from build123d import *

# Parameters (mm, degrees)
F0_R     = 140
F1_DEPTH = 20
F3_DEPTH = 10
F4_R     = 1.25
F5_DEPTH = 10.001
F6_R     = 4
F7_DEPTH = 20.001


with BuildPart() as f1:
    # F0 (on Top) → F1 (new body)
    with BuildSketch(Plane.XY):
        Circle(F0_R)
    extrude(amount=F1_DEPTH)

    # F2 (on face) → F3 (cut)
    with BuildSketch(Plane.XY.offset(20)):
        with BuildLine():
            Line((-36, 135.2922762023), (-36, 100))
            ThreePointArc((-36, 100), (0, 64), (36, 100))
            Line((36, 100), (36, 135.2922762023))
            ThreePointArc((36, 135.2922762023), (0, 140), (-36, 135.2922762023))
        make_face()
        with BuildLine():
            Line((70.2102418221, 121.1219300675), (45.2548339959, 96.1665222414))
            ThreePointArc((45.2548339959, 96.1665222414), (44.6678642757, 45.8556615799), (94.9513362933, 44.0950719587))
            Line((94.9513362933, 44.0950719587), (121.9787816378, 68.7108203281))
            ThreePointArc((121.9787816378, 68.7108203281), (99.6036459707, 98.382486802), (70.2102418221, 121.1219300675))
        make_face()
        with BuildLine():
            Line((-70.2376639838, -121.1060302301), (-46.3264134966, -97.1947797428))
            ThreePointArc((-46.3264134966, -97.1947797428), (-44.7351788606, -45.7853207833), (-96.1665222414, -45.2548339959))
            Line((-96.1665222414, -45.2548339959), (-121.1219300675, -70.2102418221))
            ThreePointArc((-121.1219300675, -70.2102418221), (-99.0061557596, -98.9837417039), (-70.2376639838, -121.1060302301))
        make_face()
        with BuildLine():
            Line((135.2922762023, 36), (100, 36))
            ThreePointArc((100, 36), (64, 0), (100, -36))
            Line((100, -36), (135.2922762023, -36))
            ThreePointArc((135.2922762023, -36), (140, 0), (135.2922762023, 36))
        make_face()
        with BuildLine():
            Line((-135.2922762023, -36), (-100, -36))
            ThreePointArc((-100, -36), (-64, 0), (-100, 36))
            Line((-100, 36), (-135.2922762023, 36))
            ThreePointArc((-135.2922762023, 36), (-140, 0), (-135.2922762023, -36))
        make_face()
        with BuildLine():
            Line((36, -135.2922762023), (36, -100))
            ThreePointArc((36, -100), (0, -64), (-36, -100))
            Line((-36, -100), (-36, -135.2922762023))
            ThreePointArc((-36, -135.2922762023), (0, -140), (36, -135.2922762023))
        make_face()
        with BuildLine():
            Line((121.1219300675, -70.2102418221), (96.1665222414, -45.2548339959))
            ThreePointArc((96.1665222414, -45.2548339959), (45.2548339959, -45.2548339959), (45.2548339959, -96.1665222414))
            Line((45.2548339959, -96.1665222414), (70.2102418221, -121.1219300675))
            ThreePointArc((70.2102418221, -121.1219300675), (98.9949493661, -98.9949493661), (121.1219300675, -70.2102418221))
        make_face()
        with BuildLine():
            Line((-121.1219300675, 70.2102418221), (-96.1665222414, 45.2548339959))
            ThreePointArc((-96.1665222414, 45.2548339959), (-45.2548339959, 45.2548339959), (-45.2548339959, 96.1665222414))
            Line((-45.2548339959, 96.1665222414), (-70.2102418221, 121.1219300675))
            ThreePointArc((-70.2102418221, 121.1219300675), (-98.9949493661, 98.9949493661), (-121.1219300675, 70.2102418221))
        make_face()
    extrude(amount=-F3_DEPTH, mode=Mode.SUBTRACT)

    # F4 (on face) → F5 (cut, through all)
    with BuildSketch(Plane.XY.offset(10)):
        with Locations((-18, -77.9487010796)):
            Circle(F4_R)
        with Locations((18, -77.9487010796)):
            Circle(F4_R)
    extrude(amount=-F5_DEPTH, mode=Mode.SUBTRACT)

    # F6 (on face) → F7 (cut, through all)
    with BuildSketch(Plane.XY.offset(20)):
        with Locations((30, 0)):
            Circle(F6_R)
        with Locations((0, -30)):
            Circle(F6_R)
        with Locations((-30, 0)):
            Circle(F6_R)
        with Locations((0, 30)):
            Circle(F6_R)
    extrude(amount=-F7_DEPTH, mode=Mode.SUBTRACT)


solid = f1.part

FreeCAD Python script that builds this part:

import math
import FreeCAD as App
import Part
import Sketcher

V = App.Vector

doc = App.newDocument("Part")
params = doc.addObject("Spreadsheet::Sheet", "Params")
for row, (alias, value) in enumerate([
    ("sketch1_diameter", "280 mm"),
    ("pad1_length", "20 mm"),
    ("sketch2_radius", "36 mm"),
    ("sketch2_radius2", "140 mm"),
    ("pocket1_length", "10 mm"),
    ("sketch3_diameter", "2.5 mm"),
    ("sketch4_diameter", "8 mm"),
], start=1):
    params.set(f"A{row}", alias)
    params.set(f"B{row}", "=" + value)
    params.setAlias(f"B{row}", alias)

body = doc.addObject("PartDesign::Body", "Body")

# Sketch on XY plane
sketch1 = body.newObject("Sketcher::SketchObject", "Sketch")
sketch1.AttachmentSupport = (doc.getObject("XY_Plane"), [""])
sketch1.MapMode = "FlatFace"
sketch1.addGeometry(Part.Circle(V(0, 0, 0), V(0, 0, 1), 140), False)
sketch1.addConstraint(Sketcher.Constraint("Coincident", 0, 3, -1, 1))
sketch1.addConstraint(Sketcher.Constraint("Diameter", 0, 280.0))
sketch1.setExpression("Constraints[1]", "Params.sketch1_diameter")
pad1 = body.newObject("PartDesign::Pad", "Pad")
pad1.Profile = sketch1
pad1.setExpression("Length", "Params.pad1_length")

# Sketch on XY plane
sketch2 = body.newObject("Sketcher::SketchObject", "Sketch001")
sketch2.AttachmentSupport = (doc.getObject("XY_Plane"), [""])
sketch2.MapMode = "FlatFace"
sketch2.AttachmentOffset = App.Placement(V(0, 0, 20), App.Rotation())
sketch2.addGeometry(Part.LineSegment(V(-36, 135, 0), V(-36, 100, 0)), False)
sketch2.addGeometry(Part.ArcOfCircle(Part.Circle(V(0, 100, 0), V(0, 0, 1), 36), math.radians(180), math.radians(360)), False)
sketch2.addGeometry(Part.LineSegment(V(36, 100, 0), V(36, 135, 0)), False)
sketch2.addGeometry(Part.ArcOfCircle(Part.Circle(V(0, 0, 0), V(0, 0, 1), 140), math.radians(75), math.radians(105)), False)
sketch2.addGeometry(Part.LineSegment(V(70, 121, 0), V(45, 96, 0)), False)
sketch2.addGeometry(Part.ArcOfCircle(Part.Circle(V(71, 71, 0), V(0, 0, 1), 36), math.radians(135), math.radians(312)), False)
sketch2.addGeometry(Part.LineSegment(V(95, 44, 0), V(122, 69, 0)), False)
sketch2.addGeometry(Part.ArcOfCircle(Part.Circle(V(0, 0, 0), V(0, 0, 1), 140), math.radians(29), math.radians(60)), False)
sketch2.addGeometry(Part.LineSegment(V(-70, -121, 0), V(-46, -97, 0)), False)
sketch2.addGeometry(Part.ArcOfCircle(Part.Circle(V(-71, -71, 0), V(0, 0, 1), 36), math.radians(-47), math.radians(135)), False)
sketch2.addGeometry(Part.LineSegment(V(-96, -45, 0), V(-121, -70, 0)), False)
sketch2.addGeometry(Part.ArcOfCircle(Part.Circle(V(0, 0, 0), V(0, 0, 1), 140), math.radians(-150), math.radians(-120)), False)
sketch2.addGeometry(Part.LineSegment(V(135, 36, 0), V(100, 36, 0)), False)
sketch2.addGeometry(Part.ArcOfCircle(Part.Circle(V(100, 0, 0), V(0, 0, 1), 36), math.radians(90), math.radians(270)), False)
sketch2.addGeometry(Part.LineSegment(V(100, -36, 0), V(135, -36, 0)), False)
sketch2.addGeometry(Part.ArcOfCircle(Part.Circle(V(0, 0, 0), V(0, 0, 1), 140), math.radians(-15), math.radians(15)), False)
sketch2.addGeometry(Part.LineSegment(V(-135, -36, 0), V(-100, -36, 0)), False)
sketch2.addGeometry(Part.ArcOfCircle(Part.Circle(V(-100, 0, 0), V(0, 0, 1), 36), math.radians(-90), math.radians(90)), False)
sketch2.addGeometry(Part.LineSegment(V(-100, 36, 0), V(-135, 36, 0)), False)
sketch2.addGeometry(Part.ArcOfCircle(Part.Circle(V(0, 0, 0), V(0, 0, 1), 140), math.radians(165), math.radians(195)), False)
sketch2.addGeometry(Part.LineSegment(V(36, -135, 0), V(36, -100, 0)), False)
sketch2.addGeometry(Part.ArcOfCircle(Part.Circle(V(0, -100, 0), V(0, 0, 1), 36), math.radians(0), math.radians(180)), False)
sketch2.addGeometry(Part.LineSegment(V(-36, -100, 0), V(-36, -135, 0)), False)
sketch2.addGeometry(Part.ArcOfCircle(Part.Circle(V(0, 0, 0), V(0, 0, 1), 140), math.radians(-105), math.radians(-75)), False)
sketch2.addGeometry(Part.LineSegment(V(121, -70, 0), V(96, -45, 0)), False)
sketch2.addGeometry(Part.ArcOfCircle(Part.Circle(V(71, -71, 0), V(0, 0, 1), 36), math.radians(45), math.radians(225)), False)
sketch2.addGeometry(Part.LineSegment(V(45, -96, 0), V(70, -121, 0)), False)
sketch2.addGeometry(Part.ArcOfCircle(Part.Circle(V(0, 0, 0), V(0, 0, 1), 140), math.radians(-60), math.radians(-30)), False)
sketch2.addGeometry(Part.LineSegment(V(-121, 70, 0), V(-96, 45, 0)), False)
sketch2.addGeometry(Part.ArcOfCircle(Part.Circle(V(-71, 71, 0), V(0, 0, 1), 36), math.radians(-135), math.radians(45)), False)
sketch2.addGeometry(Part.LineSegment(V(-45, 96, 0), V(-70, 121, 0)), False)
sketch2.addGeometry(Part.ArcOfCircle(Part.Circle(V(0, 0, 0), V(0, 0, 1), 140), math.radians(120), math.radians(150)), False)
sketch2.addConstraint(Sketcher.Constraint("Tangent", 0, 2, 1, 1))
sketch2.addConstraint(Sketcher.Constraint("Tangent", 1, 2, 2, 1))
sketch2.addConstraint(Sketcher.Constraint("Coincident", 2, 2, 3, 1))
sketch2.addConstraint(Sketcher.Constraint("Coincident", 3, 2, 0, 1))
sketch2.addConstraint(Sketcher.Constraint("Tangent", 4, 2, 5, 1))
sketch2.addConstraint(Sketcher.Constraint("Tangent", 5, 2, 6, 1))
sketch2.addConstraint(Sketcher.Constraint("Coincident", 6, 2, 7, 1))
sketch2.addConstraint(Sketcher.Constraint("Coincident", 7, 2, 4, 1))
sketch2.addConstraint(Sketcher.Constraint("Coincident", 8, 2, 9, 1))
sketch2.addConstraint(Sketcher.Constraint("Tangent", 9, 2, 10, 1))
sketch2.addConstraint(Sketcher.Constraint("Coincident", 10, 2, 11, 1))
sketch2.addConstraint(Sketcher.Constraint("Coincident", 11, 2, 8, 1))
sketch2.addConstraint(Sketcher.Constraint("Tangent", 12, 2, 13, 1))
sketch2.addConstraint(Sketcher.Constraint("Tangent", 13, 2, 14, 1))
sketch2.addConstraint(Sketcher.Constraint("Coincident", 14, 2, 15, 1))
sketch2.addConstraint(Sketcher.Constraint("Coincident", 15, 2, 12, 1))
sketch2.addConstraint(Sketcher.Constraint("Tangent", 16, 2, 17, 1))
sketch2.addConstraint(Sketcher.Constraint("Tangent", 17, 2, 18, 1))
sketch2.addConstraint(Sketcher.Constraint("Coincident", 18, 2, 19, 1))
sketch2.addConstraint(Sketcher.Constraint("Coincident", 19, 2, 16, 1))
sketch2.addConstraint(Sketcher.Constraint("Tangent", 20, 2, 21, 1))
sketch2.addConstraint(Sketcher.Constraint("Tangent", 21, 2, 22, 1))
sketch2.addConstraint(Sketcher.Constraint("Coincident", 22, 2, 23, 1))
sketch2.addConstraint(Sketcher.Constraint("Coincident", 23, 2, 20, 1))
sketch2.addConstraint(Sketcher.Constraint("Tangent", 24, 2, 25, 1))
sketch2.addConstraint(Sketcher.Constraint("Tangent", 25, 2, 26, 1))
sketch2.addConstraint(Sketcher.Constraint("Coincident", 26, 2, 27, 1))
sketch2.addConstraint(Sketcher.Constraint("Coincident", 27, 2, 24, 1))
sketch2.addConstraint(Sketcher.Constraint("Tangent", 28, 2, 29, 1))
sketch2.addConstraint(Sketcher.Constraint("Tangent", 29, 2, 30, 1))
sketch2.addConstraint(Sketcher.Constraint("Coincident", 30, 2, 31, 1))
sketch2.addConstraint(Sketcher.Constraint("Coincident", 31, 2, 28, 1))
sketch2.addConstraint(Sketcher.Constraint("Vertical", 0))
sketch2.addConstraint(Sketcher.Constraint("Vertical", 2))
sketch2.addConstraint(Sketcher.Constraint("Horizontal", 12))
sketch2.addConstraint(Sketcher.Constraint("Horizontal", 14))
sketch2.addConstraint(Sketcher.Constraint("Horizontal", 16))
sketch2.addConstraint(Sketcher.Constraint("Horizontal", 18))
sketch2.addConstraint(Sketcher.Constraint("Vertical", 20))
sketch2.addConstraint(Sketcher.Constraint("Vertical", 22))
sketch2.addConstraint(Sketcher.Constraint("Coincident", 3, 3, -1, 1))
sketch2.addConstraint(Sketcher.Constraint("Coincident", 7, 3, -1, 1))
sketch2.addConstraint(Sketcher.Constraint("Coincident", 11, 3, -1, 1))
sketch2.addConstraint(Sketcher.Constraint("Coincident", 15, 3, -1, 1))
sketch2.addConstraint(Sketcher.Constraint("Coincident", 19, 3, -1, 1))
sketch2.addConstraint(Sketcher.Constraint("Coincident", 23, 3, -1, 1))
sketch2.addConstraint(Sketcher.Constraint("Coincident", 27, 3, -1, 1))
sketch2.addConstraint(Sketcher.Constraint("Coincident", 31, 3, -1, 1))
sketch2.addConstraint(Sketcher.Constraint("Equal", 1, 5))
sketch2.addConstraint(Sketcher.Constraint("Equal", 3, 7))
sketch2.addConstraint(Sketcher.Constraint("Equal", 5, 9))
sketch2.addConstraint(Sketcher.Constraint("Equal", 7, 11))
sketch2.addConstraint(Sketcher.Constraint("Equal", 9, 13))
sketch2.addConstraint(Sketcher.Constraint("Equal", 11, 15))
sketch2.addConstraint(Sketcher.Constraint("Equal", 13, 17))
sketch2.addConstraint(Sketcher.Constraint("Equal", 15, 19))
sketch2.addConstraint(Sketcher.Constraint("Equal", 17, 21))
sketch2.addConstraint(Sketcher.Constraint("Equal", 19, 23))
sketch2.addConstraint(Sketcher.Constraint("Equal", 21, 25))
sketch2.addConstraint(Sketcher.Constraint("Equal", 23, 27))
sketch2.addConstraint(Sketcher.Constraint("Equal", 25, 29))
sketch2.addConstraint(Sketcher.Constraint("Equal", 27, 31))
sketch2.addConstraint(Sketcher.Constraint("Symmetric", 5, 3, 9, 3, -1, 1))
sketch2.addConstraint(Sketcher.Constraint("Symmetric", 13, 3, 17, 3, -1, 1))
sketch2.addConstraint(Sketcher.Constraint("Symmetric", 1, 3, 21, 3, -1, 1))
sketch2.addConstraint(Sketcher.Constraint("Symmetric", 25, 3, 29, 3, -1, 1))
sketch2.addConstraint(Sketcher.Constraint("Symmetric", 9, 3, 25, 3, -2))
sketch2.addConstraint(Sketcher.Constraint("PointOnObject", 1, 3, -2))
sketch2.addConstraint(Sketcher.Constraint("PointOnObject", 13, 3, -1))
sketch2.addConstraint(Sketcher.Constraint("Parallel", 4, 8))
sketch2.addConstraint(Sketcher.Constraint("Parallel", 8, 10))
sketch2.addConstraint(Sketcher.Constraint("Perpendicular", 10, 24))
sketch2.addConstraint(Sketcher.Constraint("Parallel", 24, 26))
sketch2.addConstraint(Sketcher.Constraint("Parallel", 26, 28))
sketch2.addConstraint(Sketcher.Constraint("Parallel", 28, 30))
sketch2.addConstraint(Sketcher.Constraint("Horizontal", 9, 2, 24, 2))
sketch2.addConstraint(Sketcher.Constraint("Equal", 18, 0))
sketch2.addConstraint(Sketcher.Constraint("Equal", 4, 10))
sketch2.addConstraint(Sketcher.Constraint("Radius", 1, 36.0))
sketch2.addConstraint(Sketcher.Constraint("Radius", 3, 140.0))
sketch2.addConstraint(Sketcher.Constraint("DistanceY", -1, 1, 1, 3, 100.0))
sketch2.addConstraint(Sketcher.Constraint("DistanceY", 5, 3, 2, 2, 64.581598))
sketch2.addConstraint(Sketcher.Constraint("DistanceY", 6, 2, 4, 2, 27.455702))
sketch2.addConstraint(Sketcher.Constraint("DistanceY", 8, 2, 9, 3, 26.484102))
sketch2.setExpression("Constraints[78]", "Params.sketch2_radius")
sketch2.setExpression("Constraints[79]", "Params.sketch2_radius2")
pocket1 = body.newObject("PartDesign::Pocket", "Pocket")
pocket1.Profile = sketch2
pocket1.setExpression("Length", "Params.pocket1_length")

# Sketch on XY plane
sketch3 = body.newObject("Sketcher::SketchObject", "Sketch002")
sketch3.AttachmentSupport = (doc.getObject("XY_Plane"), [""])
sketch3.MapMode = "FlatFace"
sketch3.AttachmentOffset = App.Placement(V(0, 0, 10), App.Rotation())
sketch3.addGeometry(Part.Circle(V(-18, -77.9, 0), V(0, 0, 1), 1.2), False)
sketch3.addGeometry(Part.Circle(V(18, -77.9, 0), V(0, 0, 1), 1.2), False)
sketch3.addConstraint(Sketcher.Constraint("Equal", 0, 1))
sketch3.addConstraint(Sketcher.Constraint("Symmetric", 0, 3, 1, 3, -2))
sketch3.addConstraint(Sketcher.Constraint("Diameter", 0, 2.5))
sketch3.addConstraint(Sketcher.Constraint("DistanceX", 0, 3, -1, 1, 18.0))
sketch3.addConstraint(Sketcher.Constraint("DistanceY", 0, 3, -1, 1, 77.948701))
sketch3.setExpression("Constraints[2]", "Params.sketch3_diameter")
pocket2 = body.newObject("PartDesign::Pocket", "Pocket001")
pocket2.Profile = sketch3
pocket2.Type = "ThroughAll"

# Sketch on XY plane
sketch4 = body.newObject("Sketcher::SketchObject", "Sketch003")
sketch4.AttachmentSupport = (doc.getObject("XY_Plane"), [""])
sketch4.MapMode = "FlatFace"
sketch4.AttachmentOffset = App.Placement(V(0, 0, 20), App.Rotation())
sketch4.addGeometry(Part.Circle(V(30, 0, 0), V(0, 0, 1), 4), False)
sketch4.addGeometry(Part.Circle(V(0, -30, 0), V(0, 0, 1), 4), False)
sketch4.addGeometry(Part.Circle(V(-30, 0, 0), V(0, 0, 1), 4), False)
sketch4.addGeometry(Part.Circle(V(0, 30, 0), V(0, 0, 1), 4), False)
sketch4.addConstraint(Sketcher.Constraint("Equal", 0, 1))
sketch4.addConstraint(Sketcher.Constraint("Equal", 1, 2))
sketch4.addConstraint(Sketcher.Constraint("Equal", 2, 3))
sketch4.addConstraint(Sketcher.Constraint("Symmetric", 0, 3, 2, 3, -1, 1))
sketch4.addConstraint(Sketcher.Constraint("Symmetric", 1, 3, 3, 3, -1, 1))
sketch4.addConstraint(Sketcher.Constraint("PointOnObject", 0, 3, -1))
sketch4.addConstraint(Sketcher.Constraint("PointOnObject", 1, 3, -2))
sketch4.addConstraint(Sketcher.Constraint("Diameter", 0, 8.0))
sketch4.addConstraint(Sketcher.Constraint("DistanceX", -1, 1, 0, 3, 30.0))
sketch4.addConstraint(Sketcher.Constraint("DistanceY", 1, 3, -1, 1, 30.0))
sketch4.setExpression("Constraints[7]", "Params.sketch4_diameter")
pocket3 = body.newObject("PartDesign::Pocket", "Pocket002")
pocket3.Profile = sketch4
pocket3.Type = "ThroughAll"

doc.recompute()
